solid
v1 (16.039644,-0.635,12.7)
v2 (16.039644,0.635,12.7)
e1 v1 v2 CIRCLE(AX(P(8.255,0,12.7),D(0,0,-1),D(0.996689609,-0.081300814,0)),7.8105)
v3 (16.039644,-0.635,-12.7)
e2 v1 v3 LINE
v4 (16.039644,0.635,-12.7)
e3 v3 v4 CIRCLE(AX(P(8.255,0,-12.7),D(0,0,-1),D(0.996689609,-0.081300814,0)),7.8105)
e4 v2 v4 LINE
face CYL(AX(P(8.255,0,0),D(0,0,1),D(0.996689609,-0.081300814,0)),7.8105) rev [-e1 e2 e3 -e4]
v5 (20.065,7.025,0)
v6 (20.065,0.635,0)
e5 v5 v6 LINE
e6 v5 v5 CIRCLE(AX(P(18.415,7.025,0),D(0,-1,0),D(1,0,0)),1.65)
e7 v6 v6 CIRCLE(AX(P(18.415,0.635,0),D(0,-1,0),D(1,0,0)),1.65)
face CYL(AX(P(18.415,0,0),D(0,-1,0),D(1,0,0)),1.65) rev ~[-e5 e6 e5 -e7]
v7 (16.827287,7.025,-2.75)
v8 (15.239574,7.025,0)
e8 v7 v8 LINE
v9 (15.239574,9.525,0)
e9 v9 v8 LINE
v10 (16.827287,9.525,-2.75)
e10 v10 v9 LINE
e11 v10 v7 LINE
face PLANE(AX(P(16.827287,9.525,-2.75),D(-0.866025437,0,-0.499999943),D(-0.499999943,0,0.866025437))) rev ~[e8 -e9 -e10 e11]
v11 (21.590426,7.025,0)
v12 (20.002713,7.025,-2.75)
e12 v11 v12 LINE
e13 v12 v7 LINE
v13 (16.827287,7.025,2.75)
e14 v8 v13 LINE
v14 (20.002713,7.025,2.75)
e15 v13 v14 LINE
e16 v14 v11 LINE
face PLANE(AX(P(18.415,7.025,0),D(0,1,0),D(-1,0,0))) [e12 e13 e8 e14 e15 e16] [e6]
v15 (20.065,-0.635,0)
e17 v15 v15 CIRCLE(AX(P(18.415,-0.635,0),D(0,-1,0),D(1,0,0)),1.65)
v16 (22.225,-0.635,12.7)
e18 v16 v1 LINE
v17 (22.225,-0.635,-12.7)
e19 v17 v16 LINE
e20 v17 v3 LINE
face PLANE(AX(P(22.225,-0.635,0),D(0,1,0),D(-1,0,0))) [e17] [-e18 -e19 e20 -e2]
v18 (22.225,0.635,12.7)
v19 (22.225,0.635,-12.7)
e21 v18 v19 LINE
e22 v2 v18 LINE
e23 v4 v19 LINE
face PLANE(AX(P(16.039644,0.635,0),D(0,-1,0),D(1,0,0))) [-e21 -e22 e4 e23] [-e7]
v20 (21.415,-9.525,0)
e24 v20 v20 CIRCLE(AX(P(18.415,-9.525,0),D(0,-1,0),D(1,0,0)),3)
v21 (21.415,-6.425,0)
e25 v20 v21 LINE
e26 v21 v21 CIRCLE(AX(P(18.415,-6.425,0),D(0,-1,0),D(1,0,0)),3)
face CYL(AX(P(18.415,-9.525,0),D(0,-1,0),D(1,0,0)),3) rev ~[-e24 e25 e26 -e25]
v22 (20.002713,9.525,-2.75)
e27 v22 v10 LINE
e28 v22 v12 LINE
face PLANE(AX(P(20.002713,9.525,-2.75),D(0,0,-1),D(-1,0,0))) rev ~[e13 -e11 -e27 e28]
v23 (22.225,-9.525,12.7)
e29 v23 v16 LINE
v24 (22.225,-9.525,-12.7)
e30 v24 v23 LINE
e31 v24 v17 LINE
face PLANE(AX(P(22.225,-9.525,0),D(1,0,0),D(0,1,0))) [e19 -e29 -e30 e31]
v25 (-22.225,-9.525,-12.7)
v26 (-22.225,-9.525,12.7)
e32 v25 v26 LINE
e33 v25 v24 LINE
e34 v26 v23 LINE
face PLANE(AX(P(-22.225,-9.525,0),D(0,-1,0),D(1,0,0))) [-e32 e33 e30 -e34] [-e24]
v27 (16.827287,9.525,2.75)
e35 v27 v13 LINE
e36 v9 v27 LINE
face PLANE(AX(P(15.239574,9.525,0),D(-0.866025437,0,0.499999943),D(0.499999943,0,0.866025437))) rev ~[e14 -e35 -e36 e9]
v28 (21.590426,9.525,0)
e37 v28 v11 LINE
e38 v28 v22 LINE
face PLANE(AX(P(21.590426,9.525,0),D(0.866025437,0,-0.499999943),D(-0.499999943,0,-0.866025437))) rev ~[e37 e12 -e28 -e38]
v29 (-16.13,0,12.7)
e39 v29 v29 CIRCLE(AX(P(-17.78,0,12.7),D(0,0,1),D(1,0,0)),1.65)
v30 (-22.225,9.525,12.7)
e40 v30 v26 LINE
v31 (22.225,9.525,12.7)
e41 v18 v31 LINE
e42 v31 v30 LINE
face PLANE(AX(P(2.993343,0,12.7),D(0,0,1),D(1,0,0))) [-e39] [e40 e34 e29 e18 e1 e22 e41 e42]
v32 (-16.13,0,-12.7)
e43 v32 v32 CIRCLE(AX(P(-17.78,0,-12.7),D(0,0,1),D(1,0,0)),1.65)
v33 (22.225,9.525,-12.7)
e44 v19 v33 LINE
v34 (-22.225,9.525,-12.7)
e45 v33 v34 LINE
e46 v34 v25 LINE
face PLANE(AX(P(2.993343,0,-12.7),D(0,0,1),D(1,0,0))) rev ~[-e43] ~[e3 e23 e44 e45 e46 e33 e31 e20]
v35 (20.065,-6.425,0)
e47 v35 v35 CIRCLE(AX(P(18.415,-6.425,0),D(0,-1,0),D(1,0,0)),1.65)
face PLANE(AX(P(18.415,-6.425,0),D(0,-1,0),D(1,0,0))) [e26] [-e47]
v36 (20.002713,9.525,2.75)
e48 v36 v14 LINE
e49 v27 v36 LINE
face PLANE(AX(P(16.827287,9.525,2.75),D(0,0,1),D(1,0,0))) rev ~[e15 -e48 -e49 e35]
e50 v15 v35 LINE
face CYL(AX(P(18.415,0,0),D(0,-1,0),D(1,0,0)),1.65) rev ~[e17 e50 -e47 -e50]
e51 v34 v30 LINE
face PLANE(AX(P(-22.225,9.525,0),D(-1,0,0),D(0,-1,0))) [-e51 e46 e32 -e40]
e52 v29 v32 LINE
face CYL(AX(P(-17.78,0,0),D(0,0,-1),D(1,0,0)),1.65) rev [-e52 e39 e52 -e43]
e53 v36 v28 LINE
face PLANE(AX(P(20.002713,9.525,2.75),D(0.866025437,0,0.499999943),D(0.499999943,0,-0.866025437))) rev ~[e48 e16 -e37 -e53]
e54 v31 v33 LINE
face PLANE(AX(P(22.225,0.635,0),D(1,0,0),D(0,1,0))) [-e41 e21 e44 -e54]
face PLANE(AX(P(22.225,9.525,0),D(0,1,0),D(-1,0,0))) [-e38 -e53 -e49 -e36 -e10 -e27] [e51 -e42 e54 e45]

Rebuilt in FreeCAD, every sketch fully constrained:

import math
import FreeCAD as App
import Part
import Sketcher
from FreeCAD import Vector
Q = App.Units.Quantity

doc = App.newDocument("Part")
body = doc.addObject("PartDesign::Body", "Body")

sketch1 = doc.addObject("Sketcher::SketchObject", "Sketch")
body.addObject(sketch1)
sketch1.AttachmentSupport = (doc.XY_Plane, [""])
sketch1.MapMode = "FlatFace"
sketch1.addGeometry([
    Part.LineSegment(Vector(22.225, 9.525, 0), Vector(-22.225, 9.525, 0)),
    Part.LineSegment(Vector(-22.225, 9.525, 0), Vector(-22.225, -9.525, 0)),
    Part.LineSegment(Vector(-22.225, -9.525, 0), Vector(22.225, -9.525, 0)),
    Part.LineSegment(Vector(22.225, -9.525, 0), Vector(22.225, -0.635, 0)),
    Part.LineSegment(Vector(22.225, -0.635, 0), Vector(16.039644, -0.635, 0)),
    Part.ArcOfCircle(Part.Circle(Vector(8.255, 0, 0), Vector(0, 0, 1), 7.8105), math.radians(4.66334), math.radians(355.33666)),
    Part.LineSegment(Vector(16.039644, 0.635, 0), Vector(22.225, 0.635, 0)),
    Part.LineSegment(Vector(22.225, 0.635, 0), Vector(22.225, 9.525, 0)),
    Part.Circle(Vector(-17.78, 0, 0), Vector(0, 0, 1), 1.65),
], False)
sketch1.addConstraint([
    Sketcher.Constraint("Coincident", 0, 2, 1, 1),
    Sketcher.Constraint("Coincident", 1, 2, 2, 1),
    Sketcher.Constraint("Coincident", 2, 2, 3, 1),
    Sketcher.Constraint("Coincident", 3, 2, 4, 1),
    Sketcher.Constraint("Coincident", 4, 2, 5, 2),
    Sketcher.Constraint("Coincident", 5, 1, 6, 1),
    Sketcher.Constraint("Coincident", 6, 2, 7, 1),
    Sketcher.Constraint("Coincident", 7, 2, 0, 1),
    Sketcher.Constraint("Horizontal", 0),
    Sketcher.Constraint("Vertical", 1),
    Sketcher.Constraint("Horizontal", 2),
    Sketcher.Constraint("Vertical", 3),
    Sketcher.Constraint("Horizontal", 4),
    Sketcher.Constraint("Horizontal", 6),
    Sketcher.Constraint("Vertical", 7),
    Sketcher.Constraint("Symmetric", 0, 2, 2, 2, -1, 1),
    Sketcher.Constraint("Symmetric", 4, 2, 5, 1, -1),
    Sketcher.Constraint("PointOnObject", 8, 3, -1),
    Sketcher.Constraint("Vertical", 3, 2, 6, 2),
    Sketcher.Constraint("DistanceX", 0, 2, 0, 1, Q("1.75 in")),
    Sketcher.Constraint("DistanceY", 1, 2, 1, 1, Q("0.75 in")),
    Sketcher.Constraint("DistanceY", 3, 1, 3, 2, Q("0.35 in")),
    Sketcher.Constraint("DistanceX", 8, 3, -1, 1, Q("0.7 in")),
    Sketcher.Constraint("Radius", 5, Q("0.3075 in")),
    Sketcher.Constraint("DistanceX", 0, 2, 5, 3, Q("1.2 in")),
    Sketcher.Constraint("Diameter", 8, Q("3.3 mm")),
])
pad1 = doc.addObject("PartDesign::Pad", "Pad")
body.addObject(pad1)
pad1.Profile = sketch1
pad1.Length = Q("1 in")
pad1.Midplane = True

sketch2 = doc.addObject("Sketcher::SketchObject", "Sketch001")
body.addObject(sketch2)
sketch2.AttachmentSupport = (doc.XZ_Plane, [""])
sketch2.MapMode = "FlatFace"
sketch2.addGeometry(Part.Circle(Vector(18.415, 0, 0), Vector(0, 0, 1), 1.65), False)
sketch2.addConstraint([
    Sketcher.Constraint("PointOnObject", 0, 3, -1),
    Sketcher.Constraint("Diameter", 0, Q("3.3 mm")),
    Sketcher.Constraint("DistanceX", -1, 1, 0, 3, Q("0.725 in")),
])
pocket1 = doc.addObject("PartDesign::Pocket", "Pocket")
body.addObject(pocket1)
pocket1.Profile = sketch2
pocket1.Length = Q("2 in")
pocket1.Midplane = True

sketch3 = doc.addObject("Sketcher::SketchObject", "Sketch002")
body.addObject(sketch3)
sketch3.AttachmentSupport = (doc.XZ_Plane, [""])
sketch3.MapMode = "FlatFace"
sketch3.AttachmentOffset = App.Placement(Vector(0, 0, 0.375 * 25.4), App.Rotation())
sketch3.addGeometry([
    Part.Circle(Vector(18.415, 0, 0), Vector(0, 0, 1), 3),
    Part.Circle(Vector(18.415, 0, 0), Vector(0, 0, 1), 1.65),
], False)
sketch3.addConstraint([
    Sketcher.Constraint("Coincident", 1, 3, 0, 3),
    Sketcher.Constraint("PointOnObject", 0, 3, -1),
    Sketcher.Constraint("Diameter", 0, Q("6 mm")),
    Sketcher.Constraint("Diameter", 1, Q("3.3 mm")),
    Sketcher.Constraint("DistanceX", -1, 1, 0, 3, Q("0.725 in")),
])
pocket2 = doc.addObject("PartDesign::Pocket", "Pocket001")
body.addObject(pocket2)
pocket2.Profile = sketch3
pocket2.Length = 3.1

sketch4 = doc.addObject("Sketcher::SketchObject", "Sketch003")
body.addObject(sketch4)
sketch4.AttachmentSupport = (doc.XZ_Plane, [""])
sketch4.MapMode = "FlatFace"
sketch4.AttachmentOffset = App.Placement(Vector(0, 0, -0.375 * 25.4), App.Rotation())
sketch4.addGeometry([
    Part.LineSegment(Vector(16.827287, 2.75, 0), Vector(20.002713, 2.75, 0)),
    Part.LineSegment(Vector(20.002713, 2.75, 0), Vector(21.590426, 0, 0)),
    Part.LineSegment(Vector(21.590426, 0, 0), Vector(20.002713, -2.75, 0)),
    Part.LineSegment(Vector(20.002713, -2.75, 0), Vector(16.827287, -2.75, 0)),
    Part.LineSegment(Vector(16.827287, -2.75, 0), Vector(15.239574, 0, 0)),
    Part.LineSegment(Vector(15.239574, 0, 0), Vector(16.827287, 2.75, 0)),
    Part.Circle(Vector(18.415, 0, 0), Vector(0, 0, 1), 1.65),
], False)
sketch4.addConstraint([
    Sketcher.Constraint("Coincident", 0, 2, 1, 1),
    Sketcher.Constraint("Coincident", 1, 2, 2, 1),
    Sketcher.Constraint("Coincident", 2, 2, 3, 1),
    Sketcher.Constraint("Coincident", 3, 2, 4, 1),
    Sketcher.Constraint("Coincident", 4, 2, 5, 1),
    Sketcher.Constraint("Coincident", 5, 2, 0, 1),
    Sketcher.Constraint("Horizontal", 0),
    Sketcher.Constraint("Horizontal", 3),
    Sketcher.Constraint("Symmetric", 0, 2, 2, 2, -1),
    Sketcher.Constraint("PointOnObject", 6, 3, -1),
    Sketcher.Constraint("PointOnObject", 1, 2, -1),
    Sketcher.Constraint("PointOnObject", 4, 2, -1),
    Sketcher.Constraint("Parallel", 1, 4),
    Sketcher.Constraint("Parallel", 2, 5),
    Sketcher.Constraint("Angle", 1, Q("-60.000004 deg")),
    Sketcher.Constraint("Diameter", 6, Q("3.3 mm")),
    Sketcher.Constraint("DistanceX", -1, 1, 6, 3, Q("0.725 in")),
    Sketcher.Constraint("DistanceY", -1, 1, 0, 2, Q("2.75 mm")),
    Sketcher.Constraint("DistanceX", 0, 1, 0, 2, Q("3.175426 mm")),
    Sketcher.Constraint("DistanceX", -1, 1, 0, 2, Q("20.002713 mm")),
])
pocket3 = doc.addObject("PartDesign::Pocket", "Pocket002")
body.addObject(pocket3)
pocket3.Profile = sketch4
pocket3.Length = 2.5
pocket3.Reversed = True

doc.recompute()
